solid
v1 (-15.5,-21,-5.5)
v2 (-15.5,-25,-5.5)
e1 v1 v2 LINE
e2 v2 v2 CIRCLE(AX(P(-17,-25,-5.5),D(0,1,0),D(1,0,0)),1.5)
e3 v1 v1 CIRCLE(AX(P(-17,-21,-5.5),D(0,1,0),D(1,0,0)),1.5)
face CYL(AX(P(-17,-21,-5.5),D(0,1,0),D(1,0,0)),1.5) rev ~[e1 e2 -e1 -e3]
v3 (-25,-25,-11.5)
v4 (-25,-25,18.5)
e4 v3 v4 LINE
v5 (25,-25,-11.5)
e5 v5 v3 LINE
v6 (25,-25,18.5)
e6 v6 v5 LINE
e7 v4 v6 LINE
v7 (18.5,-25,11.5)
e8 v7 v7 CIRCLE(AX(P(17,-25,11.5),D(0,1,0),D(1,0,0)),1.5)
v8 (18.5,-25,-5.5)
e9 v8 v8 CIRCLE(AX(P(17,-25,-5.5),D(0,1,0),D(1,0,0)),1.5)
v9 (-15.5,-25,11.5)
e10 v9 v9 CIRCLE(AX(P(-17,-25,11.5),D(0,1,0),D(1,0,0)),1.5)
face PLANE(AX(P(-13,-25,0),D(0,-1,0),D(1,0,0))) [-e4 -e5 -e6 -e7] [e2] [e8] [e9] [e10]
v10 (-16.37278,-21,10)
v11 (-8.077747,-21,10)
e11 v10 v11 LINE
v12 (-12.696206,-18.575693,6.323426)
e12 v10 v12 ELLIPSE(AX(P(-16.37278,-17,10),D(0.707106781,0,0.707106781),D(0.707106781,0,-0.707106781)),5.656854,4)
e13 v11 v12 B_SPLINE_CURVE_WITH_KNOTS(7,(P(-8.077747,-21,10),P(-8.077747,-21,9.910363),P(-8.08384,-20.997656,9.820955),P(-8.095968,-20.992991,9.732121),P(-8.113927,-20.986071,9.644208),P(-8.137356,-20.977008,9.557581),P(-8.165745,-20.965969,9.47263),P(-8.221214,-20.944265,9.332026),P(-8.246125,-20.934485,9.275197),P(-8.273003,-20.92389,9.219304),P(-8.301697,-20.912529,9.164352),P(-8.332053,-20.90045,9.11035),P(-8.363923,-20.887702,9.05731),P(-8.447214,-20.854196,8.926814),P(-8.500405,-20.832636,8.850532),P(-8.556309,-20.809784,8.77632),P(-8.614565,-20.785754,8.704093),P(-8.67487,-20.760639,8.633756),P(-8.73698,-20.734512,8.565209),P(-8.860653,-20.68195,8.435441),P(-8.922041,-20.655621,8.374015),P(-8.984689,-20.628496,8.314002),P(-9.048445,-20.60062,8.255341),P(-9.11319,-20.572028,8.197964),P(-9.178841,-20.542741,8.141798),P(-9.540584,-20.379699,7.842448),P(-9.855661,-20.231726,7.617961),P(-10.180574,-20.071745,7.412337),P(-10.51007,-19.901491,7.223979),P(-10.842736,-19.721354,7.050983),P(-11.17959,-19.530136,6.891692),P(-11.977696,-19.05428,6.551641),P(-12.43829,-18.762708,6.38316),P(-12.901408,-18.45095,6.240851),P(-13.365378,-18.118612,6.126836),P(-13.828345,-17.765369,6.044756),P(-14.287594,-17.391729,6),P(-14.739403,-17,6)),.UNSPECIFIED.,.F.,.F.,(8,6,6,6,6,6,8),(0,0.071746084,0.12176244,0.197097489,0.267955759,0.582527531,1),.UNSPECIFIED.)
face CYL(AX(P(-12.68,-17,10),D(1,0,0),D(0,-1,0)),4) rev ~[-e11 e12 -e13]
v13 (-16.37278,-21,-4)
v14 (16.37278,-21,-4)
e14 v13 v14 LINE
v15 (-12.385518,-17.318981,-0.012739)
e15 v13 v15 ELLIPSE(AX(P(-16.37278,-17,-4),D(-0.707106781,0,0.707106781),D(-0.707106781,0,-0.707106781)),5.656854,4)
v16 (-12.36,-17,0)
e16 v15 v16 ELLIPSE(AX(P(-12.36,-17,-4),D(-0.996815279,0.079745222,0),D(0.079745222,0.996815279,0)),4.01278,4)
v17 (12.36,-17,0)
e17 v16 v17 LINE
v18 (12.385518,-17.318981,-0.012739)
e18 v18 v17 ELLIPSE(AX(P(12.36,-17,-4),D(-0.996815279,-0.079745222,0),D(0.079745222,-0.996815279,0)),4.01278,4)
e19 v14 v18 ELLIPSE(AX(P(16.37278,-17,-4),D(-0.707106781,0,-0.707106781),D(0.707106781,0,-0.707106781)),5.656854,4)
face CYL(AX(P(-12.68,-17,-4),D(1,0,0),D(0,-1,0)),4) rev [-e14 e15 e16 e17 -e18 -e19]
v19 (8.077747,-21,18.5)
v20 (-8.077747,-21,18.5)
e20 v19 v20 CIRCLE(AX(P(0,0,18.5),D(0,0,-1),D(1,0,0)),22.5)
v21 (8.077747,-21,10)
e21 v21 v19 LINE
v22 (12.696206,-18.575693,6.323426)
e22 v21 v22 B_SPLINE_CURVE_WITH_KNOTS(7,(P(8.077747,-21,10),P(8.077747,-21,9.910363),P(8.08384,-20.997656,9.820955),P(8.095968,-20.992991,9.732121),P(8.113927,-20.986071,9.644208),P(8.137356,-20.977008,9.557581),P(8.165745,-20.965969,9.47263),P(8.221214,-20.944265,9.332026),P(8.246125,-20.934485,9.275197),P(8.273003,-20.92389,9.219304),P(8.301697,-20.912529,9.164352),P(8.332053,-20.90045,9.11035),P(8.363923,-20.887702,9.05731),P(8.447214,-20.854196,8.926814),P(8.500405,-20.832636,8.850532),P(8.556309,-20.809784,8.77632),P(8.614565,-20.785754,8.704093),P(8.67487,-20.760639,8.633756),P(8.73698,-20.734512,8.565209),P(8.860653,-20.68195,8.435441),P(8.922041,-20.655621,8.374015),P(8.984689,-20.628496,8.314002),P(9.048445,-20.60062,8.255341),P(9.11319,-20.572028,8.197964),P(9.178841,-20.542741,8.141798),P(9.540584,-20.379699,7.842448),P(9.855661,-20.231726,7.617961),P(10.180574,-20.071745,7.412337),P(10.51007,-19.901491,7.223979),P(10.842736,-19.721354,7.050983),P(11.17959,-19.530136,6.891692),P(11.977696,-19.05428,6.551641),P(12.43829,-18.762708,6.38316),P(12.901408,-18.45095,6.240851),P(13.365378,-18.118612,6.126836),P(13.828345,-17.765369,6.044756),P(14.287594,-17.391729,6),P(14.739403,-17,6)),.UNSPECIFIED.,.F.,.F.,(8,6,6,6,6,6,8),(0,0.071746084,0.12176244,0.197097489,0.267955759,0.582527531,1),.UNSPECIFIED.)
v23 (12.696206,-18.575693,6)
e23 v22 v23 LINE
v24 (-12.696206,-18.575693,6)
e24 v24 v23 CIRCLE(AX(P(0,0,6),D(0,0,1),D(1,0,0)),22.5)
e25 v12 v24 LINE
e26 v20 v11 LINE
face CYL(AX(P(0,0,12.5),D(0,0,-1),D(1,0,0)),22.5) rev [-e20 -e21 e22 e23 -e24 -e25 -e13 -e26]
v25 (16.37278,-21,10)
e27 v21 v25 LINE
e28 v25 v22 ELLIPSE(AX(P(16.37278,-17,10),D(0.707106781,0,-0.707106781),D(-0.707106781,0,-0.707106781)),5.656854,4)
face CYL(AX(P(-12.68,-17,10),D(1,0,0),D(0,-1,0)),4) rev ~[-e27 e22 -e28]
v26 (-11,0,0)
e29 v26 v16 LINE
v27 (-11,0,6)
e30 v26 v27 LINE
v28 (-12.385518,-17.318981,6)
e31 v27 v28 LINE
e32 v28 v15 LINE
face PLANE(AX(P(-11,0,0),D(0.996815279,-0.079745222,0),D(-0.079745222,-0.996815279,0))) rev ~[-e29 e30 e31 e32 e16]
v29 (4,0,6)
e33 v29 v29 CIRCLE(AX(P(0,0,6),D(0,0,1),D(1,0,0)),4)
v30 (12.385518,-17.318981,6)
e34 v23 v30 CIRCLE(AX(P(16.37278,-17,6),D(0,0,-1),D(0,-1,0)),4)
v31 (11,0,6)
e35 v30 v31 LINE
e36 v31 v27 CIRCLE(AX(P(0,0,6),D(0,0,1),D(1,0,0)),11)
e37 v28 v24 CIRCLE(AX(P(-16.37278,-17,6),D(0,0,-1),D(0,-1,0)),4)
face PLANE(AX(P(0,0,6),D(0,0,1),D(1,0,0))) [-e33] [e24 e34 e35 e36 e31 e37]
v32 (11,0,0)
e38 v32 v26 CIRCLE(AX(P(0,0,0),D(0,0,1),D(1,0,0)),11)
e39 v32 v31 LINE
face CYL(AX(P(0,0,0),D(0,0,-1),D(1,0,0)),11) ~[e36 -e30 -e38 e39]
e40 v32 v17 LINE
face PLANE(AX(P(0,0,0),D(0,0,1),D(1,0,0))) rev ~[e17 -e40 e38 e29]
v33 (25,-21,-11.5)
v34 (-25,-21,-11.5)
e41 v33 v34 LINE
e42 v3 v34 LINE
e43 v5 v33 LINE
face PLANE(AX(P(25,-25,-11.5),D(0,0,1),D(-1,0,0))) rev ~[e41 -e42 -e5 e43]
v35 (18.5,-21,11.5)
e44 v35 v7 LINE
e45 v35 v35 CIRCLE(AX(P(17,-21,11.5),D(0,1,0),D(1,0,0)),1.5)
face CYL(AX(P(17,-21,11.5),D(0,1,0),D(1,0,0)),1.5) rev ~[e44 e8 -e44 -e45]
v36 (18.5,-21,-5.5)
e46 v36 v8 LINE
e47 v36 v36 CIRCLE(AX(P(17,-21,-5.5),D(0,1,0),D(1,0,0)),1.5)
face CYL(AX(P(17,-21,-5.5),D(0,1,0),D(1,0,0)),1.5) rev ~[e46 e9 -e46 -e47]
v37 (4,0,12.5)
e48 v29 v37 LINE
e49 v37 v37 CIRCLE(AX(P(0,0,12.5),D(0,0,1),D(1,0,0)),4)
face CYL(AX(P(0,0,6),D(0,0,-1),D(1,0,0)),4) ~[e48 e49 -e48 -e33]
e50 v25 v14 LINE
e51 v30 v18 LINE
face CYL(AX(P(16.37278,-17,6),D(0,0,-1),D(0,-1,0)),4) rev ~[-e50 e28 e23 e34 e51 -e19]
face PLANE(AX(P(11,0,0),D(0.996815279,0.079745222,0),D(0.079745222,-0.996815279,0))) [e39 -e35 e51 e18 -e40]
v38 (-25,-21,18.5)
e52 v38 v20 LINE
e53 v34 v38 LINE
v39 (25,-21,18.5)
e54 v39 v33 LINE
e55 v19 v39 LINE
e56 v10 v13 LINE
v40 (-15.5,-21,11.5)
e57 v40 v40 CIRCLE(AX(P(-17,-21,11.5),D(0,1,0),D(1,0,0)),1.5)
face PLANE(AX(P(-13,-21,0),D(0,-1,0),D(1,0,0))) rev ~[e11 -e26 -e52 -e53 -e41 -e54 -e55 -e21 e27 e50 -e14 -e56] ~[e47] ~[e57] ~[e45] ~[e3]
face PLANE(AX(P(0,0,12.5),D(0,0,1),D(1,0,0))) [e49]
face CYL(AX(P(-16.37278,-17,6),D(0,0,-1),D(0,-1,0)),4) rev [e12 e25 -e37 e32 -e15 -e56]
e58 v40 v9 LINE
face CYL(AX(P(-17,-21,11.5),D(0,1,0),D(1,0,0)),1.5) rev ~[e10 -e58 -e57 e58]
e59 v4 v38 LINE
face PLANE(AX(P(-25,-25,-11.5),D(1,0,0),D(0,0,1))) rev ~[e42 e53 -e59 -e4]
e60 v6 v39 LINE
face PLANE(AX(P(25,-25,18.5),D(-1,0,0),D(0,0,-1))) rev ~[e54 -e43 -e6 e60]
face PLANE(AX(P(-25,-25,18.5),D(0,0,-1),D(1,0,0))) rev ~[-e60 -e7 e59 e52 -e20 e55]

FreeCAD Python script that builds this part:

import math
import FreeCAD as App
import Part
import Sketcher


def edges_at(feature, points):
    """Names of the edges that pass closest to the given points."""
    edges = feature.Shape.Edges
    near = lambda p: min(range(len(edges)), key=lambda i: edges[i].distToShape(Part.Vertex(*p))[0])
    return sorted({f"Edge{near(p) + 1}" for p in points})

doc = App.newDocument("Part")
body = doc.addObject("PartDesign::Body", "Body")

# Sketch on XY plane
sketch1 = body.newObject("Sketcher::SketchObject", "Sketch")
sketch1.AttachmentSupport = (doc.getObject("XY_Plane"), [""])
sketch1.MapMode = "FlatFace"
sketch1.addGeometry([
    Part.ArcOfCircle(Part.Circle(App.Vector(0, 0, 0), App.Vector(0, 0, 1), 11), math.radians(0), math.radians(180)),
    Part.LineSegment(App.Vector(-11, 0, 0), App.Vector(-13, -25, 0)),
    Part.LineSegment(App.Vector(-13, -25, 0), App.Vector(13, -25, 0)),
    Part.LineSegment(App.Vector(13, -25, 0), App.Vector(11, 0, 0)),
], False)
sketch1.addConstraint([
    Sketcher.Constraint("Coincident", 0, 2, 1, 1),
    Sketcher.Constraint("Coincident", 1, 2, 2, 1),
    Sketcher.Constraint("Coincident", 2, 2, 3, 1),
    Sketcher.Constraint("Coincident", 3, 2, 0, 1),
    Sketcher.Constraint("Horizontal", 2),
    Sketcher.Constraint("Coincident", 0, 3, -1, 1),
    Sketcher.Constraint("PointOnObject", 0, 2, -1),
    Sketcher.Constraint("PointOnObject", 3, 2, -1),
    Sketcher.Constraint("Equal", 1, 3),
    Sketcher.Constraint("Radius", 0, 11.0),
    Sketcher.Constraint("DistanceX", 1, 2, -1, 1, 13.0),
    Sketcher.Constraint("DistanceY", 1, 2, -1, 1, 25.0),
])
pad1 = body.newObject("PartDesign::Pad", "Pad")
pad1.Profile = sketch1
pad1.Length = 6

# Sketch on XY plane
sketch2 = body.newObject("Sketcher::SketchObject", "Sketch001")
sketch2.AttachmentSupport = (doc.getObject("XY_Plane"), [""])
sketch2.MapMode = "FlatFace"
sketch2.AttachmentOffset = App.Placement(App.Vector(0, 0, 6), App.Rotation())
sketch2.addGeometry(Part.Circle(App.Vector(0, 0, 0), App.Vector(0, 0, 1), 4), False)
sketch2.addConstraint([
    Sketcher.Constraint("Coincident", 0, 3, -1, 1),
    Sketcher.Constraint("Diameter", 0, 8.0),
])
pad2 = body.newObject("PartDesign::Pad", "Pad001")
pad2.Profile = sketch2
pad2.Length = 6.5

# Sketch on XZ plane
sketch3 = body.newObject("Sketcher::SketchObject", "Sketch002")
sketch3.AttachmentSupport = (doc.getObject("XZ_Plane"), [""])
sketch3.MapMode = "FlatFace"
sketch3.AttachmentOffset = App.Placement(App.Vector(0, 0, 25), App.Rotation())
sketch3.addGeometry([
    Part.LineSegment(App.Vector(25, 18.5, 0), App.Vector(-25, 18.5, 0)),
    Part.LineSegment(App.Vector(-25, 18.5, 0), App.Vector(-25, -11.5, 0)),
    Part.LineSegment(App.Vector(-25, -11.5, 0), App.Vector(25, -11.5, 0)),
    Part.LineSegment(App.Vector(25, -11.5, 0), App.Vector(25, 18.5, 0)),
], False)
sketch3.addConstraint([
    Sketcher.Constraint("Coincident", 0, 2, 1, 1),
    Sketcher.Constraint("Coincident", 1, 2, 2, 1),
    Sketcher.Constraint("Coincident", 2, 2, 3, 1),
    Sketcher.Constraint("Coincident", 3, 2, 0, 1),
    Sketcher.Constraint("Horizontal", 0),
    Sketcher.Constraint("Vertical", 1),
    Sketcher.Constraint("Horizontal", 2),
    Sketcher.Constraint("Vertical", 3),
    Sketcher.Constraint("DistanceX", 0, 2, 0, 1, 50.0),
    Sketcher.Constraint("DistanceY", 1, 2, 1, 1, 30.0),
    Sketcher.Constraint("DistanceX", 0, 2, -1, 1, 25.0),
    Sketcher.Constraint("DistanceY", -1, 1, 0, 2, 18.5),
])
pad3 = body.newObject("PartDesign::Pad", "Pad002")
pad3.Profile = sketch3
pad3.Length = 4
pad3.Reversed = True
doc.recompute()

fillet = body.newObject("PartDesign::Fillet", "Fillet")
fillet.Base = (pad3, edges_at(pad3, [
    (0, -21, 6),
    (0, -21, 0),
    (-12.68, -21, 3),
    (12.68, -21, 3),
]))
fillet.Radius = 4

# Sketch on XZ plane
sketch4 = body.newObject("Sketcher::SketchObject", "Sketch003")
sketch4.AttachmentSupport = (doc.getObject("XZ_Plane"), [""])
sketch4.MapMode = "FlatFace"
sketch4.AttachmentOffset = App.Placement(App.Vector(0, 0, 21), App.Rotation())
sketch4.addGeometry([
    Part.Circle(App.Vector(17, -5.5, 0), App.Vector(0, 0, 1), 1.5),
    Part.Circle(App.Vector(17, 11.5, 0), App.Vector(0, 0, 1), 1.5),
    Part.Circle(App.Vector(-17, 11.5, 0), App.Vector(0, 0, 1), 1.5),
    Part.Circle(App.Vector(-17, -5.5, 0), App.Vector(0, 0, 1), 1.5),
], False)
sketch4.addConstraint([
    Sketcher.Constraint("Equal", 0, 1),
    Sketcher.Constraint("Equal", 1, 2),
    Sketcher.Constraint("Equal", 2, 3),
    Sketcher.Constraint("Symmetric", 1, 3, 2, 3, -2),
    Sketcher.Constraint("Symmetric", 0, 3, 3, 3, -2),
    Sketcher.Constraint("Vertical", 0, 3, 1, 3),
    Sketcher.Constraint("Diameter", 0, 3.0),
    Sketcher.Constraint("DistanceX", -1, 1, 0, 3, 17.0),
    Sketcher.Constraint("DistanceY", 0, 3, 1, 3, 17.0),
    Sketcher.Constraint("DistanceY", 0, 3, -1, 1, 5.5),
])
pocket1 = body.newObject("PartDesign::Pocket", "Pocket")
pocket1.Profile = sketch4
pocket1.Length = 10
pocket1.Reversed = True

# Sketch on XY plane
sketch5 = body.newObject("Sketcher::SketchObject", "Sketch004")
sketch5.AttachmentSupport = (doc.getObject("XY_Plane"), [""])
sketch5.MapMode = "FlatFace"
sketch5.AttachmentOffset = App.Placement(App.Vector(0, 0, 12.5), App.Rotation())
sketch5.addGeometry([
    Part.Circle(App.Vector(0, 0, 0), App.Vector(0, 0, 1), 22.5),
    Part.Circle(App.Vector(0, 0, 0), App.Vector(0, 0, 1), 4),
], False)
sketch5.addConstraint([
    Sketcher.Constraint("Coincident", 0, 3, -1, 1),
    Sketcher.Constraint("Coincident", 1, 3, -1, 1),
    Sketcher.Constraint("Diameter", 0, 45.0),
    Sketcher.Constraint("Diameter", 1, 8.0),
])
pocket2 = body.newObject("PartDesign::Pocket", "Pocket001")
pocket2.Profile = sketch5
pocket2.Length = 13
pocket2.Midplane = True

doc.recompute()
